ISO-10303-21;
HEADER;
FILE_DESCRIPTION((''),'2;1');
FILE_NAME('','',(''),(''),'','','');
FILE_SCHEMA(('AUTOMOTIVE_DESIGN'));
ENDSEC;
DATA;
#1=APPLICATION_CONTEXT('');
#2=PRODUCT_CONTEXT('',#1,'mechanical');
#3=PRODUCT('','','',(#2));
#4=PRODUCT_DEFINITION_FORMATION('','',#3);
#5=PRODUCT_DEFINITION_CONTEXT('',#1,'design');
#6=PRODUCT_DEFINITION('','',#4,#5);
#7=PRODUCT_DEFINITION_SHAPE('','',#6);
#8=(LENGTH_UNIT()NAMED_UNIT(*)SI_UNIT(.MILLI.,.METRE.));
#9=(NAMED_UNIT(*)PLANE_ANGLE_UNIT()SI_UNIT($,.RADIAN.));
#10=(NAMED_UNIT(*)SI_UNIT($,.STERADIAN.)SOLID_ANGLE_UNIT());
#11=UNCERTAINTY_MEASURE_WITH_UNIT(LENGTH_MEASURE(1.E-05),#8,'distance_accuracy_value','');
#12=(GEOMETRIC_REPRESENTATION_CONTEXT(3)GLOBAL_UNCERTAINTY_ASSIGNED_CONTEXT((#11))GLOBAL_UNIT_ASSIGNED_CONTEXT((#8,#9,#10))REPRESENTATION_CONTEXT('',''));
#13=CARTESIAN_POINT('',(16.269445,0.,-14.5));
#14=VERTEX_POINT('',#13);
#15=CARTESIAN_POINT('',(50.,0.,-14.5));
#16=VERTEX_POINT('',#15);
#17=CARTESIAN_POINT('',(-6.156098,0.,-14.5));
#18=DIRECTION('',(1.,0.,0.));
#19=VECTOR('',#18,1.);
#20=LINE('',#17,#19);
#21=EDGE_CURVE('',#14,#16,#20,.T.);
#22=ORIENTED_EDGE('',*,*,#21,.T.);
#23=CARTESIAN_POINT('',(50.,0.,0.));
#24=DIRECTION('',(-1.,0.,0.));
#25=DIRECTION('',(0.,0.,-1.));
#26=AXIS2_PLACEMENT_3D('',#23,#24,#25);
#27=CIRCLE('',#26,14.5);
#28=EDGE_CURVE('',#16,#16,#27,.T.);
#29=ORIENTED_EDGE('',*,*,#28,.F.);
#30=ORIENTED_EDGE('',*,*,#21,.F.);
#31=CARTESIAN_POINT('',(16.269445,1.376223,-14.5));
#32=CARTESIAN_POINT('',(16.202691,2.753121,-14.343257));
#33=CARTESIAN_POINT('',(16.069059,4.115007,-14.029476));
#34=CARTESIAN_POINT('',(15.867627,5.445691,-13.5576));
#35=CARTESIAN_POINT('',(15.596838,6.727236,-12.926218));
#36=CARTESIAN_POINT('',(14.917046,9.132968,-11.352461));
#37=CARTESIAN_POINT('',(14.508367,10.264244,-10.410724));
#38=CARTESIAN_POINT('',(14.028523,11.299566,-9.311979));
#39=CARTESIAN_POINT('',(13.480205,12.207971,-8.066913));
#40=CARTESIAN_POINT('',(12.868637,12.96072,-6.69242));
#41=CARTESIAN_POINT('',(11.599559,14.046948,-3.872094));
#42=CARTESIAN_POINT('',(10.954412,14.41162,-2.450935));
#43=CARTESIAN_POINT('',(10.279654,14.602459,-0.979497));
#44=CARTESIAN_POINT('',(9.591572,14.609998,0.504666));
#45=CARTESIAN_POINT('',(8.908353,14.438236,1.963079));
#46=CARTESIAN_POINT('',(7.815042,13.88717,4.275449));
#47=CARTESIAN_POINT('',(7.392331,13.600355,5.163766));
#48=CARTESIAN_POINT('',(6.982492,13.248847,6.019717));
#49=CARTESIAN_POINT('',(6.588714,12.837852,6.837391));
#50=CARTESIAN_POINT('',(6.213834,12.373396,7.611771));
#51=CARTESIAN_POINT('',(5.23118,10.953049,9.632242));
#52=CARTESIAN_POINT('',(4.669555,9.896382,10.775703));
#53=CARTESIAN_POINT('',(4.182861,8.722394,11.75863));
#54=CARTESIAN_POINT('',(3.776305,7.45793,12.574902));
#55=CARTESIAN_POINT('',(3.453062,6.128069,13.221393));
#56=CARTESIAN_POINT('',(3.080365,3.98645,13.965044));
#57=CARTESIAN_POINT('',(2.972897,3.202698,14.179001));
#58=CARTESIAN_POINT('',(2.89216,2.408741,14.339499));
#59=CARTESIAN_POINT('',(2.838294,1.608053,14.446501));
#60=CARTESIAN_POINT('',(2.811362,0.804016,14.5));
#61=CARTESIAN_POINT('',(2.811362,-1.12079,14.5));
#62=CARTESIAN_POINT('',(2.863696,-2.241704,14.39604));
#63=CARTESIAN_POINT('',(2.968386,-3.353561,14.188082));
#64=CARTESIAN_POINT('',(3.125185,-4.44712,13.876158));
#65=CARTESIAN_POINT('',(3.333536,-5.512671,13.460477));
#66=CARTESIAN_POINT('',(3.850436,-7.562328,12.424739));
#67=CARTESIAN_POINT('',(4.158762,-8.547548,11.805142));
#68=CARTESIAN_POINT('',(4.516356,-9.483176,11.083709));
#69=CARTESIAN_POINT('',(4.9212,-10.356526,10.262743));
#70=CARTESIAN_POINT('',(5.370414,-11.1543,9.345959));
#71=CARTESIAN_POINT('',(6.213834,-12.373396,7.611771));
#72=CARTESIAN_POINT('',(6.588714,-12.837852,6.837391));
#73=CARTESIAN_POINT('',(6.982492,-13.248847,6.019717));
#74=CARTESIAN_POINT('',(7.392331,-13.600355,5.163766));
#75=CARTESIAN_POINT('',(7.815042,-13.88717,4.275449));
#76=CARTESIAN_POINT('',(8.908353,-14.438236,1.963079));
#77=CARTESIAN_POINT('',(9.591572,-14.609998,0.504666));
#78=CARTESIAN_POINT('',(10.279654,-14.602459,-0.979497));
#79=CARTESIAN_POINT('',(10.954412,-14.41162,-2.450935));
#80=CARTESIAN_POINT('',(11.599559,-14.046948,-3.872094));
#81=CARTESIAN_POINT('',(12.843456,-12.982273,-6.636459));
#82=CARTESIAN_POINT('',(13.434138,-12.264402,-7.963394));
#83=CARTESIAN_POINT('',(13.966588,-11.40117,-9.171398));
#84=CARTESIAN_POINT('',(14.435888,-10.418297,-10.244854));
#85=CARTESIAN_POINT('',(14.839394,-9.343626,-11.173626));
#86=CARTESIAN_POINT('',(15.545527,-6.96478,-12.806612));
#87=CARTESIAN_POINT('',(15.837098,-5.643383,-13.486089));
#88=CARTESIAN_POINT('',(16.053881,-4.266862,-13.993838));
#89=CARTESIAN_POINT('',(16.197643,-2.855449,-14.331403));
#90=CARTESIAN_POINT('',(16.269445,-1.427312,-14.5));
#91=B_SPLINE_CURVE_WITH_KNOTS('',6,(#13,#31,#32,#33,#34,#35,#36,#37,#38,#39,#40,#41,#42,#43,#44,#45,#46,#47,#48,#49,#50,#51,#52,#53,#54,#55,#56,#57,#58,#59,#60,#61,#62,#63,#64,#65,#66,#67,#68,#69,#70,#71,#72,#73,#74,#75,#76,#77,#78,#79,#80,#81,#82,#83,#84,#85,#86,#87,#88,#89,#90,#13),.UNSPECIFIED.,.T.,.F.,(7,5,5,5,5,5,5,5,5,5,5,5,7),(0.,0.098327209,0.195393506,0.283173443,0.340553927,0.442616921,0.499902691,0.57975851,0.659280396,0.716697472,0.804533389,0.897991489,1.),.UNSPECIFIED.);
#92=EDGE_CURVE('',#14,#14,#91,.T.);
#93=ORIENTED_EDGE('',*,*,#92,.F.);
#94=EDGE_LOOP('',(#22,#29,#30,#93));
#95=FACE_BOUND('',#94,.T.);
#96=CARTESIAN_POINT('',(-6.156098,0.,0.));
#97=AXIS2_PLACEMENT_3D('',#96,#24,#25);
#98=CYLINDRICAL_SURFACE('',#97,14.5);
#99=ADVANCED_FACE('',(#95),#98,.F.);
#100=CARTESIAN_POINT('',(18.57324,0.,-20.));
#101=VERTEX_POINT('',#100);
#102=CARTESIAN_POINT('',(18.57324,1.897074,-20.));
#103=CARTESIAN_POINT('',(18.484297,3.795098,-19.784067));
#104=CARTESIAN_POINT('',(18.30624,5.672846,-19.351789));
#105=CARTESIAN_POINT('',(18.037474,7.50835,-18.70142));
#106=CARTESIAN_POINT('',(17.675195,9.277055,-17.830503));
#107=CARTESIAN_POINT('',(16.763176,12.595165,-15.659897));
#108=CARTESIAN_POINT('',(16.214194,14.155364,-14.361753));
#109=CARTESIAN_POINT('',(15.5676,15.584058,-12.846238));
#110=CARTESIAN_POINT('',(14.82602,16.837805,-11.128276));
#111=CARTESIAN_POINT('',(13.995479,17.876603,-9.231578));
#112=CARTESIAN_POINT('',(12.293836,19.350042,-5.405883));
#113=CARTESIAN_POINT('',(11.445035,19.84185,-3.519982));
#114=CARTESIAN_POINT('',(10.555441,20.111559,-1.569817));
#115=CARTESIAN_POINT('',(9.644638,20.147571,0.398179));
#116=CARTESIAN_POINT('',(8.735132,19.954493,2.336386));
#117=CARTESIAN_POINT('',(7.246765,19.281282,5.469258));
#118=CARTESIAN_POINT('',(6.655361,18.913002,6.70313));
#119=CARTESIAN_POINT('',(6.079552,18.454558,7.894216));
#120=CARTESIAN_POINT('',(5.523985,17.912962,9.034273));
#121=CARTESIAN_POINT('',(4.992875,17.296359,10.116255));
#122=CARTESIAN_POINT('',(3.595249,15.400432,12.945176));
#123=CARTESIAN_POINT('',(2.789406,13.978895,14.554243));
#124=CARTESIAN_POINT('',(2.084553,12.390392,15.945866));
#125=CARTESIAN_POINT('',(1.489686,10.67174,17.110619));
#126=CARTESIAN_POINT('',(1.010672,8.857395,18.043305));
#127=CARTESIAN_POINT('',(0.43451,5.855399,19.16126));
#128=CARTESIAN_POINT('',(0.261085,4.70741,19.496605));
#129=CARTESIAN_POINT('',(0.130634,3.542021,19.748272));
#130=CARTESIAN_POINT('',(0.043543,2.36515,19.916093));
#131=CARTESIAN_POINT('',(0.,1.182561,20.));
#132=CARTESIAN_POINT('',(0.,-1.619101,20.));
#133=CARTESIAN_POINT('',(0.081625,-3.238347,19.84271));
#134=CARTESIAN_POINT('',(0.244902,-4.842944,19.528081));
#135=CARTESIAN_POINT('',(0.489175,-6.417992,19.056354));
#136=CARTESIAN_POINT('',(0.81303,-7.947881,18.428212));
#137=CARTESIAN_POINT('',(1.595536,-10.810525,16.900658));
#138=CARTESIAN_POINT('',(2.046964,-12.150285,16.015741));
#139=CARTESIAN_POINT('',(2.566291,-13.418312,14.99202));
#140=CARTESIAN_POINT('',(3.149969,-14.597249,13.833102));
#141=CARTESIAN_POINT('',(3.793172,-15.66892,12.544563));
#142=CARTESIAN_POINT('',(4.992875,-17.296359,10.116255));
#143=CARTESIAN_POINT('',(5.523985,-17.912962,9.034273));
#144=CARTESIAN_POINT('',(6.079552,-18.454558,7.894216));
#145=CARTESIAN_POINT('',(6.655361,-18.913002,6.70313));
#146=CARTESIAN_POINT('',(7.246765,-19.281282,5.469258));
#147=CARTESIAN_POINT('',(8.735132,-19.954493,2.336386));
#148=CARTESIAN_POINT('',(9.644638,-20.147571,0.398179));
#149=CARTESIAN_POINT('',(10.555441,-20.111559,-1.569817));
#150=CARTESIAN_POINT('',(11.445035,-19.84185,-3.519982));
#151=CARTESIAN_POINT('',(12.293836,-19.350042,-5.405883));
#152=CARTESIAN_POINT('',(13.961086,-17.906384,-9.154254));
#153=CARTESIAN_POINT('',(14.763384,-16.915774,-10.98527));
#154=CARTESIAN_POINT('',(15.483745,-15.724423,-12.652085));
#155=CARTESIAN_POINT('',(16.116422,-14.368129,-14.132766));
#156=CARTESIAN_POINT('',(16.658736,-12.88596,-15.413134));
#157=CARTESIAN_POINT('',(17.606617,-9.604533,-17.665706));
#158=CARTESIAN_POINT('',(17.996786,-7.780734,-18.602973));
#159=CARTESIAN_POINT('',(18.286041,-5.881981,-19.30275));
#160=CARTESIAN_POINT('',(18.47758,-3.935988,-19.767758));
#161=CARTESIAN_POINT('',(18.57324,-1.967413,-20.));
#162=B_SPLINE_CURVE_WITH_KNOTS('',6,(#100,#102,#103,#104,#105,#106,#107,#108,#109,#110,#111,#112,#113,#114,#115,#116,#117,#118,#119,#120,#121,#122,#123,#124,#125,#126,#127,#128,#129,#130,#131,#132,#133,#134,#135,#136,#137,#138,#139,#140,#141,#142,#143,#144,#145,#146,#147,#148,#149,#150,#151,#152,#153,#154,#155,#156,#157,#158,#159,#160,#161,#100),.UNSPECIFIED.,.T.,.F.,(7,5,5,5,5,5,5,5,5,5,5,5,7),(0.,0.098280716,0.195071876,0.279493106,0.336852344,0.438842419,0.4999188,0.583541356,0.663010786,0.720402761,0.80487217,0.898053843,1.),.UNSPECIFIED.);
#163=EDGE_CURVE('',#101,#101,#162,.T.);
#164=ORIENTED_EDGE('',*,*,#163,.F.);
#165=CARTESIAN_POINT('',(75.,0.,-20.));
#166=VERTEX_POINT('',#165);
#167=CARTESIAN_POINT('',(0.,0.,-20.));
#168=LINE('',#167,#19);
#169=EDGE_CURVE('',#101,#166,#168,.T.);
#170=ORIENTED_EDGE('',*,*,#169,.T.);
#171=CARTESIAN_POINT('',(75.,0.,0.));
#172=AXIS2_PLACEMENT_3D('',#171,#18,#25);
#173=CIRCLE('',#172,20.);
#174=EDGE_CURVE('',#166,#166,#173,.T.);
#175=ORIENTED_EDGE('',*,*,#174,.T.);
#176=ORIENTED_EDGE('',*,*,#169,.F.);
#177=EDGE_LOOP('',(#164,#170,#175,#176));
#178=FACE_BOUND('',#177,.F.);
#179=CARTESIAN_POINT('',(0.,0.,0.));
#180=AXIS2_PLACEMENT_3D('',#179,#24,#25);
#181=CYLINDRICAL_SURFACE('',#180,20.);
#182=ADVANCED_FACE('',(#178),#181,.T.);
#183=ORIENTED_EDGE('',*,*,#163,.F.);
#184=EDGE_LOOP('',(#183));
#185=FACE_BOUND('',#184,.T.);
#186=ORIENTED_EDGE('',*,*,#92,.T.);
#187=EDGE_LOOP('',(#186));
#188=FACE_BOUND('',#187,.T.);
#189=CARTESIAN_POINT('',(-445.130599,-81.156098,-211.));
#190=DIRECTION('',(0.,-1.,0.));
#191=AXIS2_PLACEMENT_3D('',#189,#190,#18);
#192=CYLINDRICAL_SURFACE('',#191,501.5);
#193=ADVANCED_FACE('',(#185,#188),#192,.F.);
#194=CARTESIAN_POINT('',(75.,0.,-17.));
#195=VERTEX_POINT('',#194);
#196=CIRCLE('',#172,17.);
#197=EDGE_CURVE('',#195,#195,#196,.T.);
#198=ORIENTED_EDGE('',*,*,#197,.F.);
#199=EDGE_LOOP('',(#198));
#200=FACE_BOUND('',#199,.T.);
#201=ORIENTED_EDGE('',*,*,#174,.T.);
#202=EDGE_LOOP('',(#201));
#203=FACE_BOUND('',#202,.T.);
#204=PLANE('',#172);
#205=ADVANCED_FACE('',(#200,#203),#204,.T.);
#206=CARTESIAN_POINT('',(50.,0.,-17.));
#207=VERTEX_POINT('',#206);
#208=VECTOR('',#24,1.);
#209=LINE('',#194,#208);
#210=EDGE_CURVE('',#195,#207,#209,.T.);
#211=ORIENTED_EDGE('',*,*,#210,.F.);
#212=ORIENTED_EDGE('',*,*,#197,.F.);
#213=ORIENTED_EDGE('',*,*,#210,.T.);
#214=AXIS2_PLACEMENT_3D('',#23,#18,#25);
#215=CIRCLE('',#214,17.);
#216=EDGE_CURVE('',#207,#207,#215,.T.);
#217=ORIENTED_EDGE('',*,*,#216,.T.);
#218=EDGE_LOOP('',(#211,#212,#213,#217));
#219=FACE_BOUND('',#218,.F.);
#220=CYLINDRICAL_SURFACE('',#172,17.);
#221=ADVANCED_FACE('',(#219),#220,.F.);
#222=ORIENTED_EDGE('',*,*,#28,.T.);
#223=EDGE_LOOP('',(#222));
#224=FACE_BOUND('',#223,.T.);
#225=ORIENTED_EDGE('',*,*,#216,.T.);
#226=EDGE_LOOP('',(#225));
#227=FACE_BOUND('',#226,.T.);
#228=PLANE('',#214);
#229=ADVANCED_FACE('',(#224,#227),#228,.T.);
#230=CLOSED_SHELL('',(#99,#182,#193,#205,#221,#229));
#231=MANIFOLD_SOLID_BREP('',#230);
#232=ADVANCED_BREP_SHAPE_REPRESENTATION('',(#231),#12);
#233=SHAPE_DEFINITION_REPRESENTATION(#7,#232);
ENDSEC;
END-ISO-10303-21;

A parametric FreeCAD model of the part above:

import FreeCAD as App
import Part
import Sketcher
from FreeCAD import Vector

doc = App.newDocument("Part")
body = doc.addObject("PartDesign::Body", "Body")

# Sketch on YZ plane
sketch1 = body.newObject("Sketcher::SketchObject", "Sketch")
sketch1.AttachmentSupport = (doc.getObject("YZ_Plane"), [""])
sketch1.MapMode = "FlatFace"
sketch1.addGeometry(Part.Circle(Vector(0, 0, 0), Vector(0, 0, 1), 20), False)
sketch1.addConstraint(Sketcher.Constraint("Coincident", 0, 3, -1, 1))
sketch1.addConstraint(Sketcher.Constraint("Diameter", 0, 40.0))
pad1 = body.newObject("PartDesign::Pad", "Pad")
pad1.Profile = sketch1
pad1.Length = 75

# Sketch on YZ plane
sketch2 = body.newObject("Sketcher::SketchObject", "Sketch001")
sketch2.AttachmentSupport = (doc.getObject("YZ_Plane"), [""])
sketch2.MapMode = "FlatFace"
sketch2.AttachmentOffset = App.Placement(Vector(0, 0, 75), App.Rotation())
sketch2.addGeometry(Part.Circle(Vector(0, 0, 0), Vector(0, 0, 1), 14), False)
sketch2.addConstraint(Sketcher.Constraint("Coincident", 0, 3, -1, 1))
sketch2.addConstraint(Sketcher.Constraint("Diameter", 0, 29.0))
pocket1 = body.newObject("PartDesign::Pocket", "Pocket")
pocket1.Profile = sketch2
pocket1.Type = "ThroughAll"
pocket1.Midplane = True

# Sketch on YZ plane
sketch3 = body.newObject("Sketcher::SketchObject", "Sketch002")
sketch3.AttachmentSupport = (doc.getObject("YZ_Plane"), [""])
sketch3.MapMode = "FlatFace"
sketch3.AttachmentOffset = App.Placement(Vector(0, 0, 75), App.Rotation())
sketch3.addGeometry(Part.Circle(Vector(0, 0, 0), Vector(0, 0, 1), 17), False)
sketch3.addConstraint(Sketcher.Constraint("Coincident", 0, 3, -1, 1))
sketch3.addConstraint(Sketcher.Constraint("Diameter", 0, 34.0))
pocket2 = body.newObject("PartDesign::Pocket", "Pocket001")
pocket2.Profile = sketch3
pocket2.Length = 25

# Sketch on XZ plane
sketch4 = body.newObject("Sketcher::SketchObject", "Sketch003")
sketch4.AttachmentSupport = (doc.getObject("XZ_Plane"), [""])
sketch4.MapMode = "FlatFace"
sketch4.addGeometry(Part.Circle(Vector(-445, -211, 0), Vector(0, 0, 1), 502), False)
sketch4.addConstraint(Sketcher.Constraint("Diameter", 0, 1003.0))
sketch4.addConstraint(Sketcher.Constraint("DistanceY", 0, 3, -1, 1, 211.0))
sketch4.addConstraint(Sketcher.Constraint("DistanceX", 0, 3, -1, 1, 445.130599))
pocket3 = body.newObject("PartDesign::Pocket", "Pocket002")
pocket3.Profile = sketch4
pocket3.Type = "ThroughAll"
pocket3.Midplane = True

doc.recompute()
